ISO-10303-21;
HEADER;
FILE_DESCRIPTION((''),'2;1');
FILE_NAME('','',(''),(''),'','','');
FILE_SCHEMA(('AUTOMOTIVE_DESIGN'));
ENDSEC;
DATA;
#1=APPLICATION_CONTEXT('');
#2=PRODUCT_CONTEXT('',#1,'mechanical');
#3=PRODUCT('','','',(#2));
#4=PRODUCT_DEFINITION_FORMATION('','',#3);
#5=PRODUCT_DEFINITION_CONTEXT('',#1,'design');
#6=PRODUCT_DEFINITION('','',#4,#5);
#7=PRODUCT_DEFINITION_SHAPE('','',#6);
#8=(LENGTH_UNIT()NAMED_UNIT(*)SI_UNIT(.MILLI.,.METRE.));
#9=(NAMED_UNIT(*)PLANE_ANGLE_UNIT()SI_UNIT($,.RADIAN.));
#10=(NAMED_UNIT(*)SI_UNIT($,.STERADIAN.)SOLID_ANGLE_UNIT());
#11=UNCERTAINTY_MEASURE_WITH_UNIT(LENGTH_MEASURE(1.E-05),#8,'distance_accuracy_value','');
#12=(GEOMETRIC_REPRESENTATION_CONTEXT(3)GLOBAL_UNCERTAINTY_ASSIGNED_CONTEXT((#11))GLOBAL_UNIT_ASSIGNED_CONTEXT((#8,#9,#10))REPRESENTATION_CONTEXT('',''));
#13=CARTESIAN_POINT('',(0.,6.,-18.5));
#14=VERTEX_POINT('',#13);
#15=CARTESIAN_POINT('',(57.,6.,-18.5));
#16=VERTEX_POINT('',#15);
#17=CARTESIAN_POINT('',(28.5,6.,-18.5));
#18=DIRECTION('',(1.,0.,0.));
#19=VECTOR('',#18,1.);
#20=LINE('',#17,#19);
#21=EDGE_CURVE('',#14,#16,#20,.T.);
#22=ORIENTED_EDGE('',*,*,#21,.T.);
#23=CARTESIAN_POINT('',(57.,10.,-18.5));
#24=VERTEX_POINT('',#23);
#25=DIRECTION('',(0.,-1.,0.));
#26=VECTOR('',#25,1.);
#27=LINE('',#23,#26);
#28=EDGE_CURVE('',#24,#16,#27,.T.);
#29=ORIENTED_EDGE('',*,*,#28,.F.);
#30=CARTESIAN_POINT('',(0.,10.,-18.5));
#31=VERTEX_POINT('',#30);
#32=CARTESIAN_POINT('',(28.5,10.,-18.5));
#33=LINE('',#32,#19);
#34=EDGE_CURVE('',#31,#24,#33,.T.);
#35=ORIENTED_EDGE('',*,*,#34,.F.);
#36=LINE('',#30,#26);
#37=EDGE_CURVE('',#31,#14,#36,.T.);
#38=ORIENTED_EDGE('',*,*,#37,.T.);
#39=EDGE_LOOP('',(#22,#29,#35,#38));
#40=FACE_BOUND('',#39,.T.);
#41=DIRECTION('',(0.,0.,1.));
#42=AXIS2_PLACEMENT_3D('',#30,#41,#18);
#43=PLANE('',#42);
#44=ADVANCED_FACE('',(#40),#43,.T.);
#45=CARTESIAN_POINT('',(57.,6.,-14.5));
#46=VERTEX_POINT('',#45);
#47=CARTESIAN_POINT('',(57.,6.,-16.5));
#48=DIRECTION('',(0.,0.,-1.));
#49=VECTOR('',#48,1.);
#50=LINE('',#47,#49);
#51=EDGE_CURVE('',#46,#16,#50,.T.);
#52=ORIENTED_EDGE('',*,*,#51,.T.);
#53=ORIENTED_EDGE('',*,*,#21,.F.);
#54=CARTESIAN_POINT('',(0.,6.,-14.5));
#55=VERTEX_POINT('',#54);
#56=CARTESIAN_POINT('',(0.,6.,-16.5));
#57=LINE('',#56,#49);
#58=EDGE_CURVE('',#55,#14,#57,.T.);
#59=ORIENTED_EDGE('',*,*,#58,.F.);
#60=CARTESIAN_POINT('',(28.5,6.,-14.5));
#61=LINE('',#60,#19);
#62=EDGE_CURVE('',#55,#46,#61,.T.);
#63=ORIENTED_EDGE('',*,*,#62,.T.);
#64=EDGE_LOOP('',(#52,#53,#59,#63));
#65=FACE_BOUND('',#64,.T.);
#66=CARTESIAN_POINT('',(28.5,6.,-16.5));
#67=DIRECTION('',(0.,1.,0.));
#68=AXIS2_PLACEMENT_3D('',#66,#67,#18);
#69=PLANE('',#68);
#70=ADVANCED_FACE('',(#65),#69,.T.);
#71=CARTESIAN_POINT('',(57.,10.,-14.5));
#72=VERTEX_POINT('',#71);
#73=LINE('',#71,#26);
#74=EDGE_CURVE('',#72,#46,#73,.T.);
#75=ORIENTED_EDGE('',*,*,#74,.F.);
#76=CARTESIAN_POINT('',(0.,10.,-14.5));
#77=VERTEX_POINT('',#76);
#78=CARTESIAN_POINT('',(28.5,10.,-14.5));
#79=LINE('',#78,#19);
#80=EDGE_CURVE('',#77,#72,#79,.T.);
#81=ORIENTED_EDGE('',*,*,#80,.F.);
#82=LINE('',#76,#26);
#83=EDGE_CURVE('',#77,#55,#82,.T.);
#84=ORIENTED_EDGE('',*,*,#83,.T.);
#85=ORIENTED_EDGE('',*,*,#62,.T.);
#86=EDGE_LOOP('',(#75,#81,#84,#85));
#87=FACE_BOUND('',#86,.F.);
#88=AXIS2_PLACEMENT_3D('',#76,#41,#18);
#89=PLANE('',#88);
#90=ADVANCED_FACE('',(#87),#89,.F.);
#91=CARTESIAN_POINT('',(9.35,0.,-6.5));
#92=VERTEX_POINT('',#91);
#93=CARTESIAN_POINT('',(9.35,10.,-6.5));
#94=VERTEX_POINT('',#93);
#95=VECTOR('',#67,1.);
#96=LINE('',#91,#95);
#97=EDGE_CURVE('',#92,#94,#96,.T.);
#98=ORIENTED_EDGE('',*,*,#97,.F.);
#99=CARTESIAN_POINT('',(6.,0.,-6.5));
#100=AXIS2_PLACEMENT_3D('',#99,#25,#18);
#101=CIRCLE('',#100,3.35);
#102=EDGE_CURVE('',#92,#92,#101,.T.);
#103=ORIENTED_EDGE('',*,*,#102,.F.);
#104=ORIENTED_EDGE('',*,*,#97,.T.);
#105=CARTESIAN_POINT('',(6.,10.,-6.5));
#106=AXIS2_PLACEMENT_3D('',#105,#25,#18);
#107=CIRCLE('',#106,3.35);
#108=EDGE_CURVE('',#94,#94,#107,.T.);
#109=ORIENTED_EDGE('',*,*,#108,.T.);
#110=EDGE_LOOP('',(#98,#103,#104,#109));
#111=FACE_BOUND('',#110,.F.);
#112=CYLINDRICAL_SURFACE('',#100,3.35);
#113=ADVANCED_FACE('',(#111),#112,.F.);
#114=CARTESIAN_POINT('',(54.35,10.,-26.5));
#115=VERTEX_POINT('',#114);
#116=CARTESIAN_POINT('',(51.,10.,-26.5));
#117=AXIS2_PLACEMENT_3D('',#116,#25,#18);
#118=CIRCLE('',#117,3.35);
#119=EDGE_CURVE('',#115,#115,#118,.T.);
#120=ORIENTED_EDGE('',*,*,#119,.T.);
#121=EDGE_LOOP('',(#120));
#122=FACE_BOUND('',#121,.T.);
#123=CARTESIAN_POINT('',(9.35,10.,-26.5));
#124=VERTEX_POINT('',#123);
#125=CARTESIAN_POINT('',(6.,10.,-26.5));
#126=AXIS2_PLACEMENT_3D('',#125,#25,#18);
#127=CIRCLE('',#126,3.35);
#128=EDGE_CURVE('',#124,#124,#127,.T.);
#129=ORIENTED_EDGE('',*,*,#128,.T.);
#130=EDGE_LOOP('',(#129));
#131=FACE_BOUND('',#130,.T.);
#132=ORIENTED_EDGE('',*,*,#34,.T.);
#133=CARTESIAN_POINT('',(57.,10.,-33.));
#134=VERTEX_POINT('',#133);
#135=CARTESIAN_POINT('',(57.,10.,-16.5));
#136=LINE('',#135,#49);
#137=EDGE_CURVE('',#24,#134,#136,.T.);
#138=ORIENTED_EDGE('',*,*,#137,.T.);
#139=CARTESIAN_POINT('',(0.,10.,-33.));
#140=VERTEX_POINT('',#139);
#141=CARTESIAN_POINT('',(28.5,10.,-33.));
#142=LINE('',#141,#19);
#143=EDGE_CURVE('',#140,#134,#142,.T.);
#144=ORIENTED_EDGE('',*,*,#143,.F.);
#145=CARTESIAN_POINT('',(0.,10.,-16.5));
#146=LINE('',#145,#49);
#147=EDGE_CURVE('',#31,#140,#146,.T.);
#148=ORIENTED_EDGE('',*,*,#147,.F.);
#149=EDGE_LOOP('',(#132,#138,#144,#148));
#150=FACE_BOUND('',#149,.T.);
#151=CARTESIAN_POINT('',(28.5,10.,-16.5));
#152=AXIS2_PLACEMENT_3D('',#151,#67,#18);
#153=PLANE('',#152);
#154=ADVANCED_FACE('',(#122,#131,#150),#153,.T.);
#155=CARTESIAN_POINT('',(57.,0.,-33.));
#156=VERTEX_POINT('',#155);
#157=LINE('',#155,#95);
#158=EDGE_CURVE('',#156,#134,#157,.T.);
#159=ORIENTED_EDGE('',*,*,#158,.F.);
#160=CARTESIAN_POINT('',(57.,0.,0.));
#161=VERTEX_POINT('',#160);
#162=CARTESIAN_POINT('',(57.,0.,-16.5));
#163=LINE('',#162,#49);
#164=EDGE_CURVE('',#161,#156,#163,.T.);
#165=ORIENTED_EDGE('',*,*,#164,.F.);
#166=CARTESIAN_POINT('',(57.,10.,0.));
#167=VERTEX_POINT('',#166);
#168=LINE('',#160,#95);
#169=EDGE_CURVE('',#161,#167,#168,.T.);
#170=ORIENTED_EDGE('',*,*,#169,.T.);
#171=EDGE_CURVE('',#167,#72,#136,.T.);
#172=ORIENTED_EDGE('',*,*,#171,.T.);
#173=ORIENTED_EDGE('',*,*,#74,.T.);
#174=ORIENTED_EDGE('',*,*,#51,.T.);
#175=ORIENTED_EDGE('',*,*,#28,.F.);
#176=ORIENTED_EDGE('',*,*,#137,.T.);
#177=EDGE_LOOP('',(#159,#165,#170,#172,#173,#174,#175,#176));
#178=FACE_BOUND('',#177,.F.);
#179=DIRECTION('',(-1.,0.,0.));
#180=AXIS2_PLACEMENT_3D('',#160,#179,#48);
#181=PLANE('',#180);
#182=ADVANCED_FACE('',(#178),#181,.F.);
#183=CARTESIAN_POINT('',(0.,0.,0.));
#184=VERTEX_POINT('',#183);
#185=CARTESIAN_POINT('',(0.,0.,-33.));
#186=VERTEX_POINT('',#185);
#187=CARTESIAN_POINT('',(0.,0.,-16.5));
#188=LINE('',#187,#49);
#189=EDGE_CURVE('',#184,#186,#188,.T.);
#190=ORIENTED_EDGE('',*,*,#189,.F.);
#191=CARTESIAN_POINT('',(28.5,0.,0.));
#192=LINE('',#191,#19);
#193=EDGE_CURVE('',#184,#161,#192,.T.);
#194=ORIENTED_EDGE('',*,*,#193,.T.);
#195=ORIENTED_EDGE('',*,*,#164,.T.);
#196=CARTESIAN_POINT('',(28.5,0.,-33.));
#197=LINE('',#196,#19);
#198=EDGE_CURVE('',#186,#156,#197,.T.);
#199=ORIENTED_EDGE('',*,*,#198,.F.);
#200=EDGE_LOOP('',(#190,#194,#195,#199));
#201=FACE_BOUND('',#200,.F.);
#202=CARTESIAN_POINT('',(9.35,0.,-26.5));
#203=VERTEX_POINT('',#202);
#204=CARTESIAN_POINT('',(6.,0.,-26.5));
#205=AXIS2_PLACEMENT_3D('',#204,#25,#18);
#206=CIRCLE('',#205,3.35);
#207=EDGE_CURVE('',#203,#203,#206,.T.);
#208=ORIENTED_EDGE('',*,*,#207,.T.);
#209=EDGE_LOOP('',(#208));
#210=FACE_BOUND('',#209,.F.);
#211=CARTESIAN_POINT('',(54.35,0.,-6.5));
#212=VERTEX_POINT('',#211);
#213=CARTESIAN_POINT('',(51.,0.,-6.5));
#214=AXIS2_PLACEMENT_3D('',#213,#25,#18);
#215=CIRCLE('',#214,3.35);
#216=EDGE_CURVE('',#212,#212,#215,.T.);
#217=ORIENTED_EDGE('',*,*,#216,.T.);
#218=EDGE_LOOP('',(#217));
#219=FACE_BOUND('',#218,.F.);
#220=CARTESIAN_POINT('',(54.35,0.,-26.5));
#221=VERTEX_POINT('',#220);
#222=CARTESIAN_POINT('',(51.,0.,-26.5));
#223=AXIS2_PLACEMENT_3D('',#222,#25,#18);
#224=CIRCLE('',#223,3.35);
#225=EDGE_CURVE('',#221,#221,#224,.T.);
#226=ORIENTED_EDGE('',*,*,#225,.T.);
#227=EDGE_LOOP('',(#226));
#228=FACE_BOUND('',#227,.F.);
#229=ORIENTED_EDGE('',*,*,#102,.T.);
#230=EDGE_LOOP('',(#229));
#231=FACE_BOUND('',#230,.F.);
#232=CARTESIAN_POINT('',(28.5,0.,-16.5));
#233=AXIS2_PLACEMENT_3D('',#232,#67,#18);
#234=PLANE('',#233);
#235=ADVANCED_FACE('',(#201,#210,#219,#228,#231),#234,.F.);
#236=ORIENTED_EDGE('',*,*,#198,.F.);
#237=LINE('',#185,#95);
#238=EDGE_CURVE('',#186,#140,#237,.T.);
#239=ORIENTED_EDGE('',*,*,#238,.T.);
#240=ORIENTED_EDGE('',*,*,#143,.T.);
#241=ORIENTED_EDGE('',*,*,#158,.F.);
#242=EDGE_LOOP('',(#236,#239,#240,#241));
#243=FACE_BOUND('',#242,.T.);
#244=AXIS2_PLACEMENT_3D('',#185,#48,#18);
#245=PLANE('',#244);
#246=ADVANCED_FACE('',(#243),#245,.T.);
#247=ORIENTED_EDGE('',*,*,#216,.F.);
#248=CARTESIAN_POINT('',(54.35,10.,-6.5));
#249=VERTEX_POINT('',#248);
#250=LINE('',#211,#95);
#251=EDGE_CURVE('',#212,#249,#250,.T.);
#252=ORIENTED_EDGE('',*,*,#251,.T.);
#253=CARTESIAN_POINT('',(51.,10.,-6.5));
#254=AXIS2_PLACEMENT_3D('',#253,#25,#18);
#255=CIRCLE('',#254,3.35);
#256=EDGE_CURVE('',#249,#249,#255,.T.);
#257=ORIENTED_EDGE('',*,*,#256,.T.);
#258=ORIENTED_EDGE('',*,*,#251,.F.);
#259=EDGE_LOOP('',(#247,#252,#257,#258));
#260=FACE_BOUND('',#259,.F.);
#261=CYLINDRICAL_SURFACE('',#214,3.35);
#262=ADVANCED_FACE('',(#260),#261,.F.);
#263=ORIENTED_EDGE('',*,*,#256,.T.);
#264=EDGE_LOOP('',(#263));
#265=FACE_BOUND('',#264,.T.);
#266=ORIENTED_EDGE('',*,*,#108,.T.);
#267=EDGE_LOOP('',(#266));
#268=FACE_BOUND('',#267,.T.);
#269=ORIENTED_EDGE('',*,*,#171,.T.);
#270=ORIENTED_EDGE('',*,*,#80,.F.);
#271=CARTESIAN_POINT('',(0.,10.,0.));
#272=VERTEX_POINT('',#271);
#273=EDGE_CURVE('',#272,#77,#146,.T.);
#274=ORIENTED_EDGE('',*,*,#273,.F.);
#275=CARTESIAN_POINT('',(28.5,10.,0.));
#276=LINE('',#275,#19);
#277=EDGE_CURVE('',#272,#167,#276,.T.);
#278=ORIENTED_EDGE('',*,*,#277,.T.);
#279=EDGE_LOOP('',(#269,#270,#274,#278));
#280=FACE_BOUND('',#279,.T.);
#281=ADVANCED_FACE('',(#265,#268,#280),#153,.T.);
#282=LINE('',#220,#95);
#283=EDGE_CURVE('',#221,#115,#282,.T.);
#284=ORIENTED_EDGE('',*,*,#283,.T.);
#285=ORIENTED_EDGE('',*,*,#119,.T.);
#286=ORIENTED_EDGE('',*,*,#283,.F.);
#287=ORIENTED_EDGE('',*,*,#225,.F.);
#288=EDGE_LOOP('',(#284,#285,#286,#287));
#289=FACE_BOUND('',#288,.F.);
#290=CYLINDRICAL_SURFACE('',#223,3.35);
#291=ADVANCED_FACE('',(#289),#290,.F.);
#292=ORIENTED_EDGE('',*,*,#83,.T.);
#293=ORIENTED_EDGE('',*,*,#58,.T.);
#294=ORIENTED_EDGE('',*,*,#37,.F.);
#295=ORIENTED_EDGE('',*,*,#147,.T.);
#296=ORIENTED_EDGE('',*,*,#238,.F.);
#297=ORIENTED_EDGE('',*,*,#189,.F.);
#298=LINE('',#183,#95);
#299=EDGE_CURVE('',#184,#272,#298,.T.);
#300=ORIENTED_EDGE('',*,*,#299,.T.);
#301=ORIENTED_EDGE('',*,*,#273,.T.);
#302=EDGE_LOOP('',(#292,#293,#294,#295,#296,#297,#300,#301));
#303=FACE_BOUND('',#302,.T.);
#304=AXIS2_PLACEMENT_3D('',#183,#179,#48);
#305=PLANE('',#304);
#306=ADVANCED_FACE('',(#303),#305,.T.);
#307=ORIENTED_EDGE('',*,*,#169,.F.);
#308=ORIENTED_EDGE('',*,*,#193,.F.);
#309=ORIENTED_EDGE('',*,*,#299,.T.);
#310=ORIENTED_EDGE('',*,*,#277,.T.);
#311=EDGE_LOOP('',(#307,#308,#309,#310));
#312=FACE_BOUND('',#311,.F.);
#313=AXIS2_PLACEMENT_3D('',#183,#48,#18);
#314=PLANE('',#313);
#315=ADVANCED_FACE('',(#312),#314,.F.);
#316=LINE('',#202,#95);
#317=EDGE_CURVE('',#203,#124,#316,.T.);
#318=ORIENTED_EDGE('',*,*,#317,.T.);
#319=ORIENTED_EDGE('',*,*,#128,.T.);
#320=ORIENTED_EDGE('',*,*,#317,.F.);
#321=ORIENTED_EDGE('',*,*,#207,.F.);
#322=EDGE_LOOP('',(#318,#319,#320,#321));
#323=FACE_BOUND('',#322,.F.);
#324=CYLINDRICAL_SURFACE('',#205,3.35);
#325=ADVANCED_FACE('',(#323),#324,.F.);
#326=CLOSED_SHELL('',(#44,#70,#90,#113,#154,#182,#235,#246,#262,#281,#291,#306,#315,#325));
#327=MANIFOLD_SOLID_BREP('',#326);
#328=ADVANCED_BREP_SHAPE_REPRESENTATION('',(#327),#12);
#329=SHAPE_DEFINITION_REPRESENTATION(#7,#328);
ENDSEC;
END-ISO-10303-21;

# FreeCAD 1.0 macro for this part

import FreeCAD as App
import Part
import Sketcher
from FreeCAD import Vector

doc = App.newDocument("Part")
body = doc.addObject("PartDesign::Body", "Body")

sketch1 = doc.addObject("Sketcher::SketchObject", "Sketch")
body.addObject(sketch1)
sketch1.AttachmentSupport = (doc.XZ_Plane, [""])
sketch1.MapMode = "FlatFace"
sketch1.addGeometry([
    Part.LineSegment(Vector(0, -33, 0), Vector(0, 0, 0)),
    Part.LineSegment(Vector(0, 0, 0), Vector(57, 0, 0)),
    Part.LineSegment(Vector(57, 0, 0), Vector(57, -33, 0)),
    Part.LineSegment(Vector(57, -33, 0), Vector(0, -33, 0)),
], False)
sketch1.addConstraint([
    Sketcher.Constraint("Coincident", 0, 2, 1, 1),
    Sketcher.Constraint("Coincident", 1, 2, 2, 1),
    Sketcher.Constraint("Coincident", 2, 2, 3, 1),
    Sketcher.Constraint("Coincident", 3, 2, 0, 1),
    Sketcher.Constraint("Vertical", 0),
    Sketcher.Constraint("Horizontal", 1),
    Sketcher.Constraint("Vertical", 2),
    Sketcher.Constraint("Horizontal", 3),
    Sketcher.Constraint("Coincident", 0, 2, -1, 1),
    Sketcher.Constraint("DistanceX", 1, 1, 1, 2, 57.0),
    Sketcher.Constraint("DistanceY", 0, 1, 0, 2, 33.0),
])
pad1 = doc.addObject("PartDesign::Pad", "Pad")
body.addObject(pad1)
pad1.Profile = sketch1
pad1.Length = 10
pad1.Reversed = True

sketch2 = doc.addObject("Sketcher::SketchObject", "Sketch001")
body.addObject(sketch2)
sketch2.AttachmentSupport = (doc.XZ_Plane, [""])
sketch2.MapMode = "FlatFace"
sketch2.addGeometry(Part.Circle(Vector(6, -6.5, 0), Vector(0, 0, 1), 3.4), False)
sketch2.addConstraint([
    Sketcher.Constraint("Diameter", 0, 6.7),
    Sketcher.Constraint("DistanceX", -1, 1, 0, 3, 6.0),
    Sketcher.Constraint("DistanceY", 0, 3, -1, 1, 6.5),
])
pocket1 = doc.addObject("PartDesign::Pocket", "Pocket")
body.addObject(pocket1)
pocket1.Profile = sketch2
pocket1.Type = "ThroughAll"

sketch3 = doc.addObject("Sketcher::SketchObject", "Sketch002")
body.addObject(sketch3)
sketch3.AttachmentSupport = (doc.XZ_Plane, [""])
sketch3.MapMode = "FlatFace"
sketch3.addGeometry(Part.Circle(Vector(51, -26.5, 0), Vector(0, 0, 1), 3.4), False)
sketch3.addConstraint([
    Sketcher.Constraint("Diameter", 0, 6.7),
    Sketcher.Constraint("DistanceX", -1, 1, 0, 3, 51.0),
    Sketcher.Constraint("DistanceY", 0, 3, -1, 1, 26.5),
])
pocket2 = doc.addObject("PartDesign::Pocket", "Pocket001")
body.addObject(pocket2)
pocket2.Profile = sketch3
pocket2.Type = "ThroughAll"

sketch4 = doc.addObject("Sketcher::SketchObject", "Sketch003")
body.addObject(sketch4)
sketch4.AttachmentSupport = (doc.XZ_Plane, [""])
sketch4.MapMode = "FlatFace"
sketch4.addGeometry(Part.Circle(Vector(6, -26.5, 0), Vector(0, 0, 1), 3.4), False)
sketch4.addConstraint([
    Sketcher.Constraint("Diameter", 0, 6.7),
    Sketcher.Constraint("DistanceX", -1, 1, 0, 3, 6.0),
    Sketcher.Constraint("DistanceY", 0, 3, -1, 1, 26.5),
])
pocket3 = doc.addObject("PartDesign::Pocket", "Pocket002")
body.addObject(pocket3)
pocket3.Profile = sketch4
pocket3.Type = "ThroughAll"

sketch5 = doc.addObject("Sketcher::SketchObject", "Sketch004")
body.addObject(sketch5)
sketch5.AttachmentSupport = (doc.XZ_Plane, [""])
sketch5.MapMode = "FlatFace"
sketch5.addGeometry(Part.Circle(Vector(51, -6.5, 0), Vector(0, 0, 1), 3.4), False)
sketch5.addConstraint([
    Sketcher.Constraint("Diameter", 0, 6.7),
    Sketcher.Constraint("DistanceX", -1, 1, 0, 3, 51.0),
    Sketcher.Constraint("DistanceY", 0, 3, -1, 1, 6.5),
])
pocket4 = doc.addObject("PartDesign::Pocket", "Pocket003")
body.addObject(pocket4)
pocket4.Profile = sketch5
pocket4.Type = "ThroughAll"

sketch6 = doc.addObject("Sketcher::SketchObject", "Sketch005")
body.addObject(sketch6)
sketch6.AttachmentSupport = (doc.XZ_Plane, [""])
sketch6.MapMode = "FlatFace"
sketch6.AttachmentOffset = App.Placement(Vector(0, 0, -10), App.Rotation())
sketch6.addGeometry([
    Part.LineSegment(Vector(0, -18.5, 0), Vector(0, -14.5, 0)),
    Part.LineSegment(Vector(0, -14.5, 0), Vector(57, -14.5, 0)),
    Part.LineSegment(Vector(57, -14.5, 0), Vector(57, -18.5, 0)),
    Part.LineSegment(Vector(57, -18.5, 0), Vector(0, -18.5, 0)),
], False)
sketch6.addConstraint([
    Sketcher.Constraint("Coincident", 0, 2, 1, 1),
    Sketcher.Constraint("Coincident", 1, 2, 2, 1),
    Sketcher.Constraint("Coincident", 2, 2, 3, 1),
    Sketcher.Constraint("Coincident", 3, 2, 0, 1),
    Sketcher.Constraint("Vertical", 0),
    Sketcher.Constraint("Horizontal", 1),
    Sketcher.Constraint("Vertical", 2),
    Sketcher.Constraint("Horizontal", 3),
    Sketcher.Constraint("PointOnObject", 0, 2, -2),
    Sketcher.Constraint("DistanceX", 1, 1, 1, 2, 57.0),
    Sketcher.Constraint("DistanceY", 0, 1, 0, 2, 4.0),
    Sketcher.Constraint("DistanceY", 0, 2, -1, 1, 14.5),
])
pocket5 = doc.addObject("PartDesign::Pocket", "Pocket004")
body.addObject(pocket5)
pocket5.Profile = sketch6
pocket5.Length = 4
pocket5.Reversed = True

doc.recompute()
